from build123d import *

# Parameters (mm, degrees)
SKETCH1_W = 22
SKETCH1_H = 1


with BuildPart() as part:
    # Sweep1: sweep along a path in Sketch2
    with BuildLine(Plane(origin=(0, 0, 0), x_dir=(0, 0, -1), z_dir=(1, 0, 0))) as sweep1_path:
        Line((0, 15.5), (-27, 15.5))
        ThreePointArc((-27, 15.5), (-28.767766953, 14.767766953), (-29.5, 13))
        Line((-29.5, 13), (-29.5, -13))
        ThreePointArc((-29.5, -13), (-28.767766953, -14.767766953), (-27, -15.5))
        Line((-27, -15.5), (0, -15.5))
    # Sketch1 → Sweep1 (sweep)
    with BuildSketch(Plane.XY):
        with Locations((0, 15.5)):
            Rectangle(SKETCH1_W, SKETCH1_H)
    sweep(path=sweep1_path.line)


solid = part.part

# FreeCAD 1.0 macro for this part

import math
import FreeCAD as App
import Part
import Sketcher
Q = App.Units.Quantity

doc = App.newDocument("Part")
body = doc.addObject("PartDesign::Body", "Body")

# Sketch on XY plane
sketch1 = body.newObject("Sketcher::SketchObject", "Sketch")
sketch1.AttachmentSupport = (doc.getObject("XY_Plane"), [""])
sketch1.MapMode = "FlatFace"
sketch1.addGeometry([
    Part.LineSegment(App.Vector(-11, 16, 0), App.Vector(-11, 15, 0)),
    Part.LineSegment(App.Vector(-11, 15, 0), App.Vector(11, 15, 0)),
    Part.LineSegment(App.Vector(11, 15, 0), App.Vector(11, 16, 0)),
    Part.LineSegment(App.Vector(11, 16, 0), App.Vector(-11, 16, 0)),
], False)
sketch1.addConstraint([
    Sketcher.Constraint("Coincident", 0, 2, 1, 1),
    Sketcher.Constraint("Coincident", 1, 2, 2, 1),
    Sketcher.Constraint("Coincident", 2, 2, 3, 1),
    Sketcher.Constraint("Coincident", 3, 2, 0, 1),
    Sketcher.Constraint("Vertical", 0),
    Sketcher.Constraint("Horizontal", 1),
    Sketcher.Constraint("Vertical", 2),
    Sketcher.Constraint("Horizontal", 3),
    Sketcher.Constraint("DistanceX", 1, 1, 1, 2, Q("22 mm")),
    Sketcher.Constraint("DistanceY", 0, 2, 0, 1, Q("1 mm")),
    Sketcher.Constraint("DistanceX", 0, 2, -1, 1, Q("11 mm")),
    Sketcher.Constraint("DistanceY", -1, 1, 0, 2, Q("15 mm")),
])

# Sketch on YZ plane
sketch2 = body.newObject("Sketcher::SketchObject", "Sketch001")
sketch2.AttachmentSupport = (doc.getObject("YZ_Plane"), [""])
sketch2.MapMode = "FlatFace"
sketch2.addGeometry([
    Part.LineSegment(App.Vector(15.5, 0, 0), App.Vector(15.5, 27, 0)),  # 0
    Part.ArcOfCircle(Part.Circle(App.Vector(13, 27, 0), App.Vector(0, 0, 1), 2.5), math.radians(0), math.radians(90)),  # 1
    Part.LineSegment(App.Vector(13, 29.5, 0), App.Vector(-13, 29.5, 0)),  # 2
    Part.ArcOfCircle(Part.Circle(App.Vector(-13, 27, 0), App.Vector(0, 0, 1), 2.5), math.radians(90), math.radians(180)),  # 3
    Part.LineSegment(App.Vector(-15.5, 27, 0), App.Vector(-15.5, 0, 0)),  # 4
], False)
sketch2.addConstraint([
    Sketcher.Constraint("Tangent", 0, 2, 1, 1),
    Sketcher.Constraint("Tangent", 1, 2, 2, 1),
    Sketcher.Constraint("Tangent", 2, 2, 3, 1),
    Sketcher.Constraint("Tangent", 3, 2, 4, 1),
    Sketcher.Constraint("Vertical", 0),
    Sketcher.Constraint("Horizontal", 2),
    Sketcher.Constraint("Vertical", 4),
    Sketcher.Constraint("Equal", 1, 3),
    Sketcher.Constraint("Symmetric", 0, 1, 4, 2, -1, 1),
    Sketcher.Constraint("PointOnObject", 0, 1, -1),
    Sketcher.Constraint("Radius", 1, Q("2.5 mm")),
    Sketcher.Constraint("DistanceX", 2, 2, 2, 1, Q("26 mm")),
    Sketcher.Constraint("DistanceY", 0, 1, 0, 2, Q("27 mm")),
])
doc.recompute()

additivepipe = body.newObject("PartDesign::AdditivePipe", "AdditivePipe")
additivepipe.Profile = sketch1
additivepipe.Spine = (sketch2, ["Edge1", "Edge2", "Edge3", "Edge4", "Edge5"])

doc.recompute()
